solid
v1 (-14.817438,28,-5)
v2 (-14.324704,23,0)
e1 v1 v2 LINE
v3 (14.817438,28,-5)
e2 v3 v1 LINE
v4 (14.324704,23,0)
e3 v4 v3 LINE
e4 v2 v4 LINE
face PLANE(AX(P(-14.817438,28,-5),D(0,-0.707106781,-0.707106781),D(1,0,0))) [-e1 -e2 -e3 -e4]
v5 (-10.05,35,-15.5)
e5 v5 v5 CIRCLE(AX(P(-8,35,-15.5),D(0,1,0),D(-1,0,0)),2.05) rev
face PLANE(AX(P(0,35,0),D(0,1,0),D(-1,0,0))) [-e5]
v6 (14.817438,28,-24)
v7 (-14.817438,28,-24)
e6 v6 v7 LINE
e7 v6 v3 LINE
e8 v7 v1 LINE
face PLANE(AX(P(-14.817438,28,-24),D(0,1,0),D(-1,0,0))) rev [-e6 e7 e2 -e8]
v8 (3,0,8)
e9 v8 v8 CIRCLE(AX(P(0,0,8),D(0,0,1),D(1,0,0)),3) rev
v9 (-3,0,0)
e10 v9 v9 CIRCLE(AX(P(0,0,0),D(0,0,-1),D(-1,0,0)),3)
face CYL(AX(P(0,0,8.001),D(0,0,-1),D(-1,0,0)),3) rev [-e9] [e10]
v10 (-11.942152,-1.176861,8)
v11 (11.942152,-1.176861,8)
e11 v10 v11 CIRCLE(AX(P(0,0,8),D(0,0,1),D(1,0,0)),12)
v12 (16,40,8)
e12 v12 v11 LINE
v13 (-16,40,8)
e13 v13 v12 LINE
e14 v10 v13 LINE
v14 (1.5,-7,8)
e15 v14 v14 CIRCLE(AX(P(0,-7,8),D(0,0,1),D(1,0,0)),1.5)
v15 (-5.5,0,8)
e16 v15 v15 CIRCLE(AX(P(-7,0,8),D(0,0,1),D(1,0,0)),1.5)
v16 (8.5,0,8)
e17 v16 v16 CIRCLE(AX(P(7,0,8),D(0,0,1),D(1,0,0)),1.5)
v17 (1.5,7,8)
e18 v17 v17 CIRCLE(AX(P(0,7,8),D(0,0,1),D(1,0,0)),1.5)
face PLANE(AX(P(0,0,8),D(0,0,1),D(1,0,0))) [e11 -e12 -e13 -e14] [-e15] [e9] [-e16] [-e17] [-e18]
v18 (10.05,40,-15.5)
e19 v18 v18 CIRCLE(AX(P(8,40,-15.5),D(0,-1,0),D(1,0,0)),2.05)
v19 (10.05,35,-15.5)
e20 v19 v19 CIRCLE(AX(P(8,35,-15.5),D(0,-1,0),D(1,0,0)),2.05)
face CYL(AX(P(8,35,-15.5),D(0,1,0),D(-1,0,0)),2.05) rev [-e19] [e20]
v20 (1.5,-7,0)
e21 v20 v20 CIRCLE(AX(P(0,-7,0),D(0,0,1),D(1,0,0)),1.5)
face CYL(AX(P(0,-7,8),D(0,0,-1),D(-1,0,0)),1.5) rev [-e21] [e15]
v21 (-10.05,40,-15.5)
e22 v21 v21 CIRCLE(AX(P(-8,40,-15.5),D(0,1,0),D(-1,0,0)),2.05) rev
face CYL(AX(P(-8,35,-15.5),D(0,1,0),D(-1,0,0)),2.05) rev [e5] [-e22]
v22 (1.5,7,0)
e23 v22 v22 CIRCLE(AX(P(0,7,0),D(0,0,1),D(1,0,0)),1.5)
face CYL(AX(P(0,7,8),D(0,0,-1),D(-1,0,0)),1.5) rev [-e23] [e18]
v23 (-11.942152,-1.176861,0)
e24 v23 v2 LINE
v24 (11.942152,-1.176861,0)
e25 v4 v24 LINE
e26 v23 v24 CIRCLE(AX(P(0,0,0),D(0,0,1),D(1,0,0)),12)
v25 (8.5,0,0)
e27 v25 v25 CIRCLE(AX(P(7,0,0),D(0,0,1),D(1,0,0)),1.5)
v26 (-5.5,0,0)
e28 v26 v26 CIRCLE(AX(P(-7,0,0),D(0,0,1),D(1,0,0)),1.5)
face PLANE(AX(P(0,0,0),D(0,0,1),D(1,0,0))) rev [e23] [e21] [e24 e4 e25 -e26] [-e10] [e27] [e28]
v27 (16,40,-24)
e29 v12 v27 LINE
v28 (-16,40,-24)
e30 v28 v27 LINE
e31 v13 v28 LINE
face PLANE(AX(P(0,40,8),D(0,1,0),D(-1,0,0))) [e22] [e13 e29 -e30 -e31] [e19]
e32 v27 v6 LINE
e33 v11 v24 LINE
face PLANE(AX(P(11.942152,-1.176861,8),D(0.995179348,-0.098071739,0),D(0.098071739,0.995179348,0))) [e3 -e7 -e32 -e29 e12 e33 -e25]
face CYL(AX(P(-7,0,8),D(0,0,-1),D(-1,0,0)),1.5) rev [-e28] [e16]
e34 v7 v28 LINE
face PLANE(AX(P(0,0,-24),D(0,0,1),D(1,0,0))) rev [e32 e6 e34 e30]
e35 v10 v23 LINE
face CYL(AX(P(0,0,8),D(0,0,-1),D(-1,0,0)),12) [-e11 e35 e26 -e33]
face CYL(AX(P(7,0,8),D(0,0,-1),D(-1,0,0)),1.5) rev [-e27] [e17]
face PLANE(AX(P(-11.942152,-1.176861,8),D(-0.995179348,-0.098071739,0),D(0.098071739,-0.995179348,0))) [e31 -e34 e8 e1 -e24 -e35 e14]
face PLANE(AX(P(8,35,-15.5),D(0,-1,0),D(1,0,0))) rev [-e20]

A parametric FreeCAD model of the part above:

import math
import FreeCAD as App
import Part
import Sketcher

V = App.Vector
Q = App.Units.Quantity


def edges_at(feature, points):
    """Names of the edges that pass closest to the given points."""
    edges = feature.Shape.Edges
    near = lambda p: min(range(len(edges)), key=lambda i: edges[i].distToShape(Part.Vertex(*p))[0])
    return sorted({f"Edge{near(p) + 1}" for p in points})


def add_polygon(sketch, points):
    """Adds a closed chain of lines whose ends are joined by coincident constraints."""
    first, n = sketch.GeometryCount, len(points)
    for a, b in zip(points, points[1:] + points[:1]):
        sketch.addGeometry(Part.LineSegment(App.Vector(*a, 0), App.Vector(*b, 0)), False)
    for i in range(n):
        sketch.addConstraint(Sketcher.Constraint("Coincident", first + i, 2, first + (i + 1) % n, 1))

doc = App.newDocument("Part")
body = doc.addObject("PartDesign::Body", "Body")

# Sketch on XY plane
sketch1 = body.newObject("Sketcher::SketchObject", "Sketch")
sketch1.AttachmentSupport = (doc.getObject("XY_Plane"), [""])
sketch1.MapMode = "FlatFace"
sketch1.addGeometry([
    Part.LineSegment(V(-16, 40, 0), V(-11.9, -1.2, 0)),  # 0
    Part.ArcOfCircle(Part.Circle(V(0, 0, 0), V(0, 0, 1), 12), math.radians(-174), math.radians(-6)),  # 1
    Part.LineSegment(V(11.9, -1.2, 0), V(16, 40, 0)),  # 2
    Part.LineSegment(V(16, 40, 0), V(-16, 40, 0)),  # 3
    Part.Circle(V(0, -7, 0), V(0, 0, 1), 1.5),  # 4
    Part.Circle(V(-7, 0, 0), V(0, 0, 1), 1.5),  # 5
    Part.Circle(V(7, 0, 0), V(0, 0, 1), 1.5),  # 6
    Part.Circle(V(0, 7, 0), V(0, 0, 1), 1.5),  # 7
], False)
sketch1.addConstraint([
    Sketcher.Constraint("Tangent", 0, 2, 1, 1),
    Sketcher.Constraint("Tangent", 1, 2, 2, 1),
    Sketcher.Constraint("Coincident", 2, 2, 3, 1),
    Sketcher.Constraint("Coincident", 3, 2, 0, 1),
    Sketcher.Constraint("Horizontal", 3),
    Sketcher.Constraint("Coincident", 1, 3, -1, 1),
    Sketcher.Constraint("Equal", 4, 5),
    Sketcher.Constraint("Equal", 5, 6),
    Sketcher.Constraint("Equal", 6, 7),
    Sketcher.Constraint("Symmetric", 5, 3, 6, 3, -1, 1),
    Sketcher.Constraint("Symmetric", 4, 3, 7, 3, -1, 1),
    Sketcher.Constraint("PointOnObject", 4, 3, -2),
    Sketcher.Constraint("PointOnObject", 5, 3, -1),
    Sketcher.Constraint("Horizontal", 0, 2, 1, 2),
    Sketcher.Constraint("Diameter", 4, Q("3 mm")),
    Sketcher.Constraint("Radius", 1, Q("12 mm")),
    Sketcher.Constraint("DistanceX", 3, 2, 3, 1, Q("32 mm")),
    Sketcher.Constraint("DistanceY", 4, 3, -1, 1, Q("7 mm")),
    Sketcher.Constraint("DistanceX", 5, 3, -1, 1, Q("7 mm")),
    Sketcher.Constraint("DistanceY", -1, 1, 2, 2, Q("40 mm")),
])
pad1 = body.newObject("PartDesign::Pad", "Pad")
pad1.Profile = sketch1
pad1.Length = 8

# Sketch on XY plane
sketch2 = body.newObject("Sketcher::SketchObject", "Sketch001")
sketch2.AttachmentSupport = (doc.getObject("XY_Plane"), [""])
sketch2.MapMode = "FlatFace"
add_polygon(sketch2, [(15, 28), (-15, 28), (-16, 40), (16, 40)])  # lines 0-3
sketch2.addConstraint([
    Sketcher.Constraint("Horizontal", 0),
    Sketcher.Constraint("Horizontal", 2),
    Sketcher.Constraint("Equal", 1, 3),
    Sketcher.Constraint("DistanceX", 2, 1, 2, 2, Q("32 mm")),
    Sketcher.Constraint("DistanceY", -1, 1, 0, 2, Q("28 mm")),
    Sketcher.Constraint("DistanceX", 1, 2, -1, 1, Q("16 mm")),
    Sketcher.Constraint("DistanceY", -1, 1, 1, 2, Q("40 mm")),
    Sketcher.Constraint("Distance", 1, Q("12.058128 mm")),
])
pad2 = body.newObject("PartDesign::Pad", "Pad001")
pad2.Profile = sketch2
pad2.Length = 24
pad2.Reversed = True
doc.recompute()

chamfer = body.newObject("PartDesign::Chamfer", "Chamfer")
chamfer.Base = (pad2, edges_at(pad2, [(0, 28, 0)]))
chamfer.Size = 5

# Sketch on XY plane
sketch3 = body.newObject("Sketcher::SketchObject", "Sketch002")
sketch3.AttachmentSupport = (doc.getObject("XY_Plane"), [""])
sketch3.MapMode = "FlatFace"
sketch3.addGeometry(Part.Circle(V(0, 0, 0), V(0, 0, 1), 3), False)
sketch3.addConstraint([
    Sketcher.Constraint("Coincident", 0, 3, -1, 1),
    Sketcher.Constraint("Diameter", 0, Q("6 mm")),
])
pocket1 = body.newObject("PartDesign::Pocket", "Pocket")
pocket1.Profile = sketch3
pocket1.Type = "UpToFirst"
pocket1.Reversed = True

# Sketch on XZ plane
sketch4 = body.newObject("Sketcher::SketchObject", "Sketch003")
sketch4.AttachmentSupport = (doc.getObject("XZ_Plane"), [""])
sketch4.MapMode = "FlatFace"
sketch4.AttachmentOffset = App.Placement(V(0, 0, -40), App.Rotation())
sketch4.addGeometry([
    Part.Circle(V(-8, -15.5, 0), V(0, 0, 1), 2),
    Part.Circle(V(8, -15.5, 0), V(0, 0, 1), 2),
], False)
sketch4.addConstraint([
    Sketcher.Constraint("Equal", 0, 1),
    Sketcher.Constraint("Symmetric", 0, 3, 1, 3, -2),
    Sketcher.Constraint("Diameter", 0, Q("4.1 mm")),
    Sketcher.Constraint("DistanceX", 0, 3, -1, 1, Q("8 mm")),
    Sketcher.Constraint("DistanceY", 0, 3, -1, 1, Q("15.5 mm")),
])
pocket2 = body.newObject("PartDesign::Pocket", "Pocket001")
pocket2.Profile = sketch4
pocket2.Length = 5
pocket2.Reversed = True

doc.recompute()
